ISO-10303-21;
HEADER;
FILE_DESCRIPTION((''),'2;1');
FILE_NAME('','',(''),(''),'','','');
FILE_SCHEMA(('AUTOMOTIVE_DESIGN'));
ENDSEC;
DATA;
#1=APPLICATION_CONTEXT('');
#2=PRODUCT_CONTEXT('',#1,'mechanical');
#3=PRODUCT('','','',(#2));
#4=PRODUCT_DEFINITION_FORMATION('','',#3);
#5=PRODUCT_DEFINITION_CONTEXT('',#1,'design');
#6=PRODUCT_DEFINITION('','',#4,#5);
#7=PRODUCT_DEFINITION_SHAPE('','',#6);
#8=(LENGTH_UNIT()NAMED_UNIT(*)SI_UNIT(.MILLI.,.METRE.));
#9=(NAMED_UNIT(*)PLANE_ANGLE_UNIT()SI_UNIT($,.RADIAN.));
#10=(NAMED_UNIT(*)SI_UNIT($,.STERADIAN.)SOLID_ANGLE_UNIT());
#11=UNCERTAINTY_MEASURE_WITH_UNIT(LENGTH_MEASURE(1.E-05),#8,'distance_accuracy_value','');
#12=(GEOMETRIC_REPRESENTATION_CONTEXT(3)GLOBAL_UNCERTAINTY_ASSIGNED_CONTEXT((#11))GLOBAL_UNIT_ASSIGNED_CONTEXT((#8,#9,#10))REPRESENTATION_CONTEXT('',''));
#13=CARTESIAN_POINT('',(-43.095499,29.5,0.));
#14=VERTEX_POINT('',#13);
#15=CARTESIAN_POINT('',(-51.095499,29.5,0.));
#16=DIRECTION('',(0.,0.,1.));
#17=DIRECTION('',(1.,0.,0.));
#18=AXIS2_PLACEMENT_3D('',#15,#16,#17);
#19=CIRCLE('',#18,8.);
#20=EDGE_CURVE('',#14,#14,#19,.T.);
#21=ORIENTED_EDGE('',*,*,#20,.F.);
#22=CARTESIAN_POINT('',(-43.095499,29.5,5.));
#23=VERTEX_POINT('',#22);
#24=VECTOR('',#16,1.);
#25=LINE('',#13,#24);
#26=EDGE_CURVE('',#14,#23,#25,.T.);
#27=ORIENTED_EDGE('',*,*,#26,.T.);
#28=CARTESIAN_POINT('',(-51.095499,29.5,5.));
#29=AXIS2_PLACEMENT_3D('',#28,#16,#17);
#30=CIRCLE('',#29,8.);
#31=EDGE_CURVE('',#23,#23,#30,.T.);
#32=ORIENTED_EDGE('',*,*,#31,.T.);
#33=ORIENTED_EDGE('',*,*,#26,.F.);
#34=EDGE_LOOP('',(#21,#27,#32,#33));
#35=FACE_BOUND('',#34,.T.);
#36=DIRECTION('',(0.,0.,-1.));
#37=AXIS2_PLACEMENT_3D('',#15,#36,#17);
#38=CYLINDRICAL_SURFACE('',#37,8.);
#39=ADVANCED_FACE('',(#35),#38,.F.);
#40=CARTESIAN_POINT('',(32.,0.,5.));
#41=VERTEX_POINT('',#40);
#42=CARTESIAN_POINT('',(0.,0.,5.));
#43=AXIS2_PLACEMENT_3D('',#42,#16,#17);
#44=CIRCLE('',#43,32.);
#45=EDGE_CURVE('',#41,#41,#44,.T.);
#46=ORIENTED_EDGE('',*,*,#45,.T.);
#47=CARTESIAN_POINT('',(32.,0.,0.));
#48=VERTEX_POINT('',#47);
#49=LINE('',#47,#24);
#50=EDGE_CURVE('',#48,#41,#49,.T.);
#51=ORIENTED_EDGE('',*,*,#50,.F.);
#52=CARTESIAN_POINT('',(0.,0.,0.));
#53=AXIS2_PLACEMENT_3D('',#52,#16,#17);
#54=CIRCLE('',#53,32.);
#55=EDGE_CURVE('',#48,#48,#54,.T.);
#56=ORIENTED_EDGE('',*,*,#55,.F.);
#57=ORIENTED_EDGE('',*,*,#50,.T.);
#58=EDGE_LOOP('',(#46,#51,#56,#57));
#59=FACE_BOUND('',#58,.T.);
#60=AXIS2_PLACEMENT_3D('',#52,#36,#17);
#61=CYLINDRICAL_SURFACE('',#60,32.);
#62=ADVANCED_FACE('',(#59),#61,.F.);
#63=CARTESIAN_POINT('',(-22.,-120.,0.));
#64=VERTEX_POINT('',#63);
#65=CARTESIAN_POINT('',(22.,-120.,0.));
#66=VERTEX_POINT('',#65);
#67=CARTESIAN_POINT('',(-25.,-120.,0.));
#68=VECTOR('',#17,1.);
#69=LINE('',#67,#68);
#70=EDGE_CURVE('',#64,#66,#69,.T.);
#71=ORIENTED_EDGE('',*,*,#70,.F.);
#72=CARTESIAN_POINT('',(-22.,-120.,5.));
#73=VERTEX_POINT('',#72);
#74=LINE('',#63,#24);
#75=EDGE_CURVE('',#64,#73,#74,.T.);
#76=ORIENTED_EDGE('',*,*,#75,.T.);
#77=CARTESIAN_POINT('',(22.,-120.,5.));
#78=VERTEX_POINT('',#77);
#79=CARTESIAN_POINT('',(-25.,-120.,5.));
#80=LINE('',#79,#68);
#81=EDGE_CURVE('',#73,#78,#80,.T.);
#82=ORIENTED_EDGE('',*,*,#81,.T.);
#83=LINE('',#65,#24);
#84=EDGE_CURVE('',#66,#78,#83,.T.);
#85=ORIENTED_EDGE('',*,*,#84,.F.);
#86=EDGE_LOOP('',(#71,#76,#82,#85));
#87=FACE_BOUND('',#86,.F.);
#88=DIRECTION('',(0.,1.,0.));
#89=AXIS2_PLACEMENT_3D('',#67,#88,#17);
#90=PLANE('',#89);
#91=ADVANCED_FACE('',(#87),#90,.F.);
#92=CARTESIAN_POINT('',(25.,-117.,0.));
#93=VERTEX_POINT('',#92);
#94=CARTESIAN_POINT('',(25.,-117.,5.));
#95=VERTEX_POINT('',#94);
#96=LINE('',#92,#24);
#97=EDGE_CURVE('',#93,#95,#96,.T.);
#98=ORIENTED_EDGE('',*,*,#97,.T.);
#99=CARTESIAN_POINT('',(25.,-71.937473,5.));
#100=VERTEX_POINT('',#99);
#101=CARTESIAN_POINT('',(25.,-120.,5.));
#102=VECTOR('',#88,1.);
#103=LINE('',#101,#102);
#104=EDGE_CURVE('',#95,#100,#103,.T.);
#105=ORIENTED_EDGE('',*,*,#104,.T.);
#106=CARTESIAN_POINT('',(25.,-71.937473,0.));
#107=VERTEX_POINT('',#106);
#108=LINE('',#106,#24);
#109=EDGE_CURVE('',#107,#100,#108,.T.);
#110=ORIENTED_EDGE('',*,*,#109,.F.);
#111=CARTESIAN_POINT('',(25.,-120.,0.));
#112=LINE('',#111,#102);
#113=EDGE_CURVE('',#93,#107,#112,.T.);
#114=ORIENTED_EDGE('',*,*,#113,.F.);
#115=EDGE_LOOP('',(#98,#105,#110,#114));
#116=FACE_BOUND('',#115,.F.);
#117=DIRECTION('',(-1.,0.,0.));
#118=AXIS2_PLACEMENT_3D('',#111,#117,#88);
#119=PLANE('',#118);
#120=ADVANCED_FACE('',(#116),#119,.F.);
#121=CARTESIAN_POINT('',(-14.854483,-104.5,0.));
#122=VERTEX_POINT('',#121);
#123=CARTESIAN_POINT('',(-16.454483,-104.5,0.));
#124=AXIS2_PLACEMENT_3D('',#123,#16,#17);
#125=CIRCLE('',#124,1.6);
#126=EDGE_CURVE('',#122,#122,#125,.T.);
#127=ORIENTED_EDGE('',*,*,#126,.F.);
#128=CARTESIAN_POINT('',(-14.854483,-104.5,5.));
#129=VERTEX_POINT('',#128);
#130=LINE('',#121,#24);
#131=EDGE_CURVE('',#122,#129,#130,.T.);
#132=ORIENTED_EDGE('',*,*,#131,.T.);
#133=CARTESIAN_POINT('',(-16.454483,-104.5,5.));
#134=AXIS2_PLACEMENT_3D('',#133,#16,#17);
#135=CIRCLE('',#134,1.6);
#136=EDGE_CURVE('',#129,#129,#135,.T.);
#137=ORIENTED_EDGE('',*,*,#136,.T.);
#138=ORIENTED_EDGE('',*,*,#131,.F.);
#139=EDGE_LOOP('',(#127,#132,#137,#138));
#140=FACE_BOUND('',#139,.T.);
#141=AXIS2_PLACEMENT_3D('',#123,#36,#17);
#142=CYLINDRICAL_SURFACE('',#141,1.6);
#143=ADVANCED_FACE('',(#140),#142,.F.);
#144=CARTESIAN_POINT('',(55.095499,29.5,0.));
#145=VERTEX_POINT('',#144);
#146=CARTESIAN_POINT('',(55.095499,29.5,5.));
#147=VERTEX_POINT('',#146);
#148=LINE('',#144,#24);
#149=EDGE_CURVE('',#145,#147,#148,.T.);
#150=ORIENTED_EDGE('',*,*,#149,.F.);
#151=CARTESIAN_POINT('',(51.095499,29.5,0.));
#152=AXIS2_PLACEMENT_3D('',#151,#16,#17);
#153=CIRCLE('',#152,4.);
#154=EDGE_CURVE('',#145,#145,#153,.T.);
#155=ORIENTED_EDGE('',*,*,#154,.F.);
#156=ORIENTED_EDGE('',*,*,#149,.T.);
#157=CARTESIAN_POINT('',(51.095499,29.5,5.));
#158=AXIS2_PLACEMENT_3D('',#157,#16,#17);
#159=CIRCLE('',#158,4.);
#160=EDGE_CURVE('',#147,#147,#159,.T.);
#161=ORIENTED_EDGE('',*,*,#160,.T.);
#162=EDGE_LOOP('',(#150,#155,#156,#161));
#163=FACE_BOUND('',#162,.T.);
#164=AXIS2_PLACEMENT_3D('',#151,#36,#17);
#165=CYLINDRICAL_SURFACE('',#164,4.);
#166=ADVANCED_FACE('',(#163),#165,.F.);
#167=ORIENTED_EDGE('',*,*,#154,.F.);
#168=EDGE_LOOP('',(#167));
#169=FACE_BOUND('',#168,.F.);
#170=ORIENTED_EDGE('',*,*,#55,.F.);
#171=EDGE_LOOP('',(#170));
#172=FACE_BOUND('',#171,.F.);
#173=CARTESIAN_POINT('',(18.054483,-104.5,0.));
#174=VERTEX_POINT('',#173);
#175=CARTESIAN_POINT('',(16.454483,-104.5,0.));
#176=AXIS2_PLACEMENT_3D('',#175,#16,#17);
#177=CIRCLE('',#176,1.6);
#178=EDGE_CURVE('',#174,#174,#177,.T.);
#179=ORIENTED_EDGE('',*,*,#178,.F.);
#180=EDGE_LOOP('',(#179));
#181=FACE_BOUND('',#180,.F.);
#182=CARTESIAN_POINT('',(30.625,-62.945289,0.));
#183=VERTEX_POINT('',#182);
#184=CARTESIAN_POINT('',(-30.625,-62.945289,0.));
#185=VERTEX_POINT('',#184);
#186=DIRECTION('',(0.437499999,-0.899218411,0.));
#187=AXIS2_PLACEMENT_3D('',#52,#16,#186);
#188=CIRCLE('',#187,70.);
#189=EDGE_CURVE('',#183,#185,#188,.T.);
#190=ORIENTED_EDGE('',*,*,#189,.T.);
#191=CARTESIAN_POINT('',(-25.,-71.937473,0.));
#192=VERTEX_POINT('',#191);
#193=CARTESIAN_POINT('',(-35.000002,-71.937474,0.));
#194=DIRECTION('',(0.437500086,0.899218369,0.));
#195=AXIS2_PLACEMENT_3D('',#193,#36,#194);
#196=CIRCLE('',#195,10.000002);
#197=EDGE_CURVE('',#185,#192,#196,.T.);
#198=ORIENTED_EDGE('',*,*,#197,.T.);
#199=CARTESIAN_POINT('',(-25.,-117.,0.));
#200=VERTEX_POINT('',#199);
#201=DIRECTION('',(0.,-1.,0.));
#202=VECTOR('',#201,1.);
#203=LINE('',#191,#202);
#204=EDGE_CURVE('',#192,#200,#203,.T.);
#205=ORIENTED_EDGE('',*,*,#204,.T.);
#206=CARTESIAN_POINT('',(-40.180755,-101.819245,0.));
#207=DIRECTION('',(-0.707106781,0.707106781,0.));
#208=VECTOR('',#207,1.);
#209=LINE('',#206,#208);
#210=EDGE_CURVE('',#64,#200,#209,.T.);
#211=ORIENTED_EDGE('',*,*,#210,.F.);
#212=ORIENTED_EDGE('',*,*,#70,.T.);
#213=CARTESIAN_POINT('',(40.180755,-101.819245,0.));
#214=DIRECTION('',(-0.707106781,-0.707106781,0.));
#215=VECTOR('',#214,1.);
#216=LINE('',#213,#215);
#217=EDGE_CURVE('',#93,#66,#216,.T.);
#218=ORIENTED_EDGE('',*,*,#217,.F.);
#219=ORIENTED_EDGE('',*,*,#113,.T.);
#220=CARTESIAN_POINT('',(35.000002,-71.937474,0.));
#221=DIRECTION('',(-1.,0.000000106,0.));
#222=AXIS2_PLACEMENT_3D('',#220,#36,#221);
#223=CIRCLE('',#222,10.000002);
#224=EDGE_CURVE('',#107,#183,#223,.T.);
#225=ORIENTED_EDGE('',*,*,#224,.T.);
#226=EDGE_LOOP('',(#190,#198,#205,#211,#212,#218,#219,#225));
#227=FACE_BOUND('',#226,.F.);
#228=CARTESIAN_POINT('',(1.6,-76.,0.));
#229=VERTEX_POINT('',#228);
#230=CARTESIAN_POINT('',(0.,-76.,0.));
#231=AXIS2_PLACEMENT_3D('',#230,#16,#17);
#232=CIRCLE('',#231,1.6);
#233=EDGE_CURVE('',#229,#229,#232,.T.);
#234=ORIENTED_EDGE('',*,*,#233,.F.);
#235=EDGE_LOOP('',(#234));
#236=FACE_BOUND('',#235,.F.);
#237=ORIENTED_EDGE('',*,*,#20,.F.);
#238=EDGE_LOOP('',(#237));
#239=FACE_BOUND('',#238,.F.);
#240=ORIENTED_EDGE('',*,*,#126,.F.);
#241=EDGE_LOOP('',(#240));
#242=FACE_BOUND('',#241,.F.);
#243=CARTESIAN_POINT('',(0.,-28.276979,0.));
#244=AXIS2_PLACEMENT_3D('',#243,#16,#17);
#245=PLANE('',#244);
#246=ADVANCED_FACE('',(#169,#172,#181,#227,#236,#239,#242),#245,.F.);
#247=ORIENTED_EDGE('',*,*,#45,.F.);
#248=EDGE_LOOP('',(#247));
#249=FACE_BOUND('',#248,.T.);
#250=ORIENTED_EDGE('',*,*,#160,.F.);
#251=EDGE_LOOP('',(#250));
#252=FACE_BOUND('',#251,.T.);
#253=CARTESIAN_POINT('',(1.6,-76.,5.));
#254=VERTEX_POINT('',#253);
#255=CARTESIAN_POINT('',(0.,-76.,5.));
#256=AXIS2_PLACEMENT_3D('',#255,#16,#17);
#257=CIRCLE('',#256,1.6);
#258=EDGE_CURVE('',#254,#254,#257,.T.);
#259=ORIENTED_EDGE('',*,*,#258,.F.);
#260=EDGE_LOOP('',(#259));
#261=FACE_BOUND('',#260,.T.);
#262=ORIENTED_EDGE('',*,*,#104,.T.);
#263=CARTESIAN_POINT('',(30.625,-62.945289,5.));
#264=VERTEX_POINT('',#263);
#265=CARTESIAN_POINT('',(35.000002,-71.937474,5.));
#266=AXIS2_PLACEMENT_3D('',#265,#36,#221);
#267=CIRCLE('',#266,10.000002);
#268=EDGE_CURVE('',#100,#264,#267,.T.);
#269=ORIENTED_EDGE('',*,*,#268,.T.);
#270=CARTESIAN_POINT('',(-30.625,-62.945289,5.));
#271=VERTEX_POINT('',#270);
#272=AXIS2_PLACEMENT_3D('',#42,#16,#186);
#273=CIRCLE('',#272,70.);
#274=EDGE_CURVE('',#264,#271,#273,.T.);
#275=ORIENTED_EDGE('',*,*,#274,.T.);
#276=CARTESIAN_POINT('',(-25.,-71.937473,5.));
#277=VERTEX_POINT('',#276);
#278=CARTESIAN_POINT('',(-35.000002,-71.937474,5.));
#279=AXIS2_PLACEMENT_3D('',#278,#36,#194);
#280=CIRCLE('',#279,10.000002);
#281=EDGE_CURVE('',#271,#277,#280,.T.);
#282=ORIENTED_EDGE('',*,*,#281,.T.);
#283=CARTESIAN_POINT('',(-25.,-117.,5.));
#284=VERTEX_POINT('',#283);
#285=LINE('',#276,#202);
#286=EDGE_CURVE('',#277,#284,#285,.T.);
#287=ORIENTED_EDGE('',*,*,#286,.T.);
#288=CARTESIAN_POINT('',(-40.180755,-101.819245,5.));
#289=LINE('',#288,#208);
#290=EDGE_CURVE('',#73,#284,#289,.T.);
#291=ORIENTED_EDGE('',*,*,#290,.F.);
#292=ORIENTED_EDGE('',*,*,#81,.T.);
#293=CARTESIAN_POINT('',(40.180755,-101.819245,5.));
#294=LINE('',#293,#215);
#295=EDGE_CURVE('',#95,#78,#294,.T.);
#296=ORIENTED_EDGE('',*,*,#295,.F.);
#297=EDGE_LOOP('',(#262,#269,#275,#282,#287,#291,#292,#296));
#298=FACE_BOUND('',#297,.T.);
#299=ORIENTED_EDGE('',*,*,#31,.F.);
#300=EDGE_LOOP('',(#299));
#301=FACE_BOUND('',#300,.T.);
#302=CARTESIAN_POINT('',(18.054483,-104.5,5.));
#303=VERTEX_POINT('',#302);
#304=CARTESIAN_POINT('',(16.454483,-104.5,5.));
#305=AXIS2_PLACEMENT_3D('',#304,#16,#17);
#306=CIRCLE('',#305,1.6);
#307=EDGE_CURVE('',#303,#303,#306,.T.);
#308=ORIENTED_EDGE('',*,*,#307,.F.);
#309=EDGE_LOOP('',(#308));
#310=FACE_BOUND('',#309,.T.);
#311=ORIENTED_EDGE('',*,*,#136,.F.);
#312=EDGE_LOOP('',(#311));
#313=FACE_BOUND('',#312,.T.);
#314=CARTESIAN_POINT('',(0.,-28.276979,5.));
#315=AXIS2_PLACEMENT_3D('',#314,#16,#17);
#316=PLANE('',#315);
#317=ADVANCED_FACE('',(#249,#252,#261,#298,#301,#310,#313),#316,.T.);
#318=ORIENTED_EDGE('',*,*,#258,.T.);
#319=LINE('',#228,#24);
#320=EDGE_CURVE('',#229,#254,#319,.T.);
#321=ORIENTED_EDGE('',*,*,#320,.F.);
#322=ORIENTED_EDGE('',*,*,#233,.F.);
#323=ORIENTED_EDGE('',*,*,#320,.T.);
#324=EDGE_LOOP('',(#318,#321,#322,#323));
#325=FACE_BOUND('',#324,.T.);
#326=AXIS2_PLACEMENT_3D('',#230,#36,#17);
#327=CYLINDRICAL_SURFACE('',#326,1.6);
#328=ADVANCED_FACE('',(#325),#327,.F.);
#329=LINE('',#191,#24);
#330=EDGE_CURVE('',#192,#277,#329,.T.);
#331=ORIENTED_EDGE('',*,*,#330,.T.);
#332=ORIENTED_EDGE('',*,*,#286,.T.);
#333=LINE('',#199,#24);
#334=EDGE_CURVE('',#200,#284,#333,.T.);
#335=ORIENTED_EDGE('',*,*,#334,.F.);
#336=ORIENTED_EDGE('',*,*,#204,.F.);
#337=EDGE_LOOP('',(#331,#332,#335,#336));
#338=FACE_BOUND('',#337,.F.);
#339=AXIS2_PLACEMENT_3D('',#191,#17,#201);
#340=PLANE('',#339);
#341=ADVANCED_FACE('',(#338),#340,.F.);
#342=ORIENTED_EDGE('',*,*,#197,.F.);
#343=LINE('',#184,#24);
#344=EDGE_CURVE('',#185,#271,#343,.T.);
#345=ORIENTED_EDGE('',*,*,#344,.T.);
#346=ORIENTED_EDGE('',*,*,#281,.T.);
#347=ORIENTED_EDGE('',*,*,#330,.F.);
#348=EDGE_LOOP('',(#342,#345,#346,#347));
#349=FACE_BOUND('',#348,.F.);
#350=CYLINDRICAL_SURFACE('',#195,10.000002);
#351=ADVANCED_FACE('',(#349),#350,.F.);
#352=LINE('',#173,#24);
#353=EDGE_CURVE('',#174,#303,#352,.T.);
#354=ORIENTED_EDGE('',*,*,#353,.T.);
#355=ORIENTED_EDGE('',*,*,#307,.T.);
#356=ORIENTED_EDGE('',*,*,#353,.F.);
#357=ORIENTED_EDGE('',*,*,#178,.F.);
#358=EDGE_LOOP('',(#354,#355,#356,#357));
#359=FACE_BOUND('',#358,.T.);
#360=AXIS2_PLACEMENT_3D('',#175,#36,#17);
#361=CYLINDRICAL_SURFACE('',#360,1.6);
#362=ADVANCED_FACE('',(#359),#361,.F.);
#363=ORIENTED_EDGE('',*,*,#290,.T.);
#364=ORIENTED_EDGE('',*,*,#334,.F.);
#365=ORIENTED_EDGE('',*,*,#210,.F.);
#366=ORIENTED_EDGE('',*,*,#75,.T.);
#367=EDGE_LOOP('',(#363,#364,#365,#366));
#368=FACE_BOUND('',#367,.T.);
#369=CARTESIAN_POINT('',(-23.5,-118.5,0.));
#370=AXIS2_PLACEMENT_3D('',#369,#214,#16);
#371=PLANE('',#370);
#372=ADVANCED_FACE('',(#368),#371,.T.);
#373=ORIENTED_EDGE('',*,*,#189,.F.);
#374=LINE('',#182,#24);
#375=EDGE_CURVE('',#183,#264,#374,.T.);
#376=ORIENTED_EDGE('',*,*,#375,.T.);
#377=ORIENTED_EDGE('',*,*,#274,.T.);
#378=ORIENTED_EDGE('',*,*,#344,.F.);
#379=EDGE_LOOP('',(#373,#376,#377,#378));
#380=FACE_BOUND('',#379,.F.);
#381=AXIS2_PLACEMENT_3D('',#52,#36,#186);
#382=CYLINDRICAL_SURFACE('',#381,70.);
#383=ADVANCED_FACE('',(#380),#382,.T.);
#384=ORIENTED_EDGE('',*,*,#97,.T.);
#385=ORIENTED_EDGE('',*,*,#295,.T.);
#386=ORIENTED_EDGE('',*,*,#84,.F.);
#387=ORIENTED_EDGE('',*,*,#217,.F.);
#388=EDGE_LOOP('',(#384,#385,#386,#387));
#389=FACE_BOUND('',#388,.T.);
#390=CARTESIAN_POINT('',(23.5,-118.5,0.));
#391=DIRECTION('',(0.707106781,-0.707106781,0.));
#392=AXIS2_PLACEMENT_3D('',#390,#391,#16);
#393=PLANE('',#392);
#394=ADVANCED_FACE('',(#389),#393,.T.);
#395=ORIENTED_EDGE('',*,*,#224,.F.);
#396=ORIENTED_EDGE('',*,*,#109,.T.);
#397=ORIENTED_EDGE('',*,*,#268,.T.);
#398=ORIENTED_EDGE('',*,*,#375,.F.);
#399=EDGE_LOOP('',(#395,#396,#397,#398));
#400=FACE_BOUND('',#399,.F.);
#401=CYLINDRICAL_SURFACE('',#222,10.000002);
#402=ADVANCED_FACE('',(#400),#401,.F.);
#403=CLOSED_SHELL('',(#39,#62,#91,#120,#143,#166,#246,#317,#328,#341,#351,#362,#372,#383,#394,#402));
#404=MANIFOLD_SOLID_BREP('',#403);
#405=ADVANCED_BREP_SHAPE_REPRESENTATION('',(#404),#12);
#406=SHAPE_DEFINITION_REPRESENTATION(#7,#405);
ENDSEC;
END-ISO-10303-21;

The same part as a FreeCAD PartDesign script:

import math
import FreeCAD as App
import Part
import Sketcher
from FreeCAD import Vector
Q = App.Units.Quantity


def edges_at(feature, points):
    """Names of the edges that pass closest to the given points."""
    edges = feature.Shape.Edges
    near = lambda p: min(range(len(edges)), key=lambda i: edges[i].distToShape(Part.Vertex(*p))[0])
    return sorted({f"Edge{near(p) + 1}" for p in points})

doc = App.newDocument("Part")
body = doc.addObject("PartDesign::Body", "Body")

# Sketch on XY plane
sketch1 = doc.addObject("Sketcher::SketchObject", "Sketch")
body.addObject(sketch1)
sketch1.AttachmentSupport = (doc.XY_Plane, [""])
sketch1.MapMode = "FlatFace"
sketch1.addGeometry([
    Part.LineSegment(Vector(25, -120, 0), Vector(25, -71.9, 0)),  # 0
    Part.ArcOfCircle(Part.Circle(Vector(35, -71.9, 0), Vector(0, 0, 1), 10), math.radians(116), math.radians(180)),  # 1
    Part.ArcOfCircle(Part.Circle(Vector(0, 0, 0), Vector(0, 0, 1), 70), math.radians(-64), math.radians(244)),  # 2
    Part.ArcOfCircle(Part.Circle(Vector(-35, -71.9, 0), Vector(0, 0, 1), 10), math.radians(0), math.radians(64)),  # 3
    Part.LineSegment(Vector(-25, -71.9, 0), Vector(-25, -120, 0)),  # 4
    Part.LineSegment(Vector(-25, -120, 0), Vector(25, -120, 0)),  # 5
    Part.Circle(Vector(-16.5, -104.5, 0), Vector(0, 0, 1), 1.6),  # 6
    Part.Circle(Vector(16.5, -104.5, 0), Vector(0, 0, 1), 1.6),  # 7
    Part.Circle(Vector(0, -76, 0), Vector(0, 0, 1), 1.6),  # 8
    Part.Circle(Vector(-51.1, 29.5, 0), Vector(0, 0, 1), 8),  # 9
    Part.Circle(Vector(0, 0, 0), Vector(0, 0, 1), 32),  # 10
    Part.Circle(Vector(51.1, 29.5, 0), Vector(0, 0, 1), 4),  # 11
], False)
sketch1.addConstraint([
    Sketcher.Constraint("Tangent", 0, 2, 1, 2),
    Sketcher.Constraint("Tangent", 1, 1, 2, 1),
    Sketcher.Constraint("Tangent", 2, 2, 3, 2),
    Sketcher.Constraint("Tangent", 3, 1, 4, 1),
    Sketcher.Constraint("Coincident", 4, 2, 5, 1),
    Sketcher.Constraint("Coincident", 5, 2, 0, 1),
    Sketcher.Constraint("Vertical", 0),
    Sketcher.Constraint("Vertical", 4),
    Sketcher.Constraint("Horizontal", 5),
    Sketcher.Constraint("Coincident", 2, 3, -1, 1),
    Sketcher.Constraint("Coincident", 10, 3, -1, 1),
    Sketcher.Constraint("Equal", 1, 3),
    Sketcher.Constraint("Equal", 6, 7),
    Sketcher.Constraint("Equal", 7, 8),
    Sketcher.Constraint("Symmetric", 6, 3, 7, 3, -2),
    Sketcher.Constraint("Symmetric", 9, 3, 11, 3, -2),
    Sketcher.Constraint("PointOnObject", 8, 3, -2),
    Sketcher.Constraint("Horizontal", 1, 3, 3, 3),
    Sketcher.Constraint("Diameter", 9, Q("16 mm")),
    Sketcher.Constraint("Diameter", 10, Q("64 mm")),
    Sketcher.Constraint("Diameter", 11, Q("8 mm")),
    Sketcher.Constraint("Radius", 1, Q("10.000002 mm")),
    Sketcher.Constraint("Radius", 2, Q("70 mm")),
    Sketcher.Constraint("Diameter", 6, Q("3.2 mm")),
    Sketcher.Constraint("DistanceX", 5, 1, 5, 2, Q("50 mm")),
    Sketcher.Constraint("DistanceY", 8, 3, -1, 1, Q("76 mm")),
    Sketcher.Constraint("DistanceY", 4, 2, -1, 1, Q("120 mm")),
    Sketcher.Constraint("DistanceY", 6, 3, 9, 3, Q("134 mm")),
    Sketcher.Constraint("DistanceY", 6, 3, -1, 1, Q("104.5 mm")),
    Sketcher.Constraint("DistanceX", 9, 3, -1, 1, Q("51.095499 mm")),
    Sketcher.Constraint("DistanceX", 3, 3, 6, 3, Q("18.545519 mm")),
])
pad1 = doc.addObject("PartDesign::Pad", "Pad")
body.addObject(pad1)
pad1.Profile = sketch1
pad1.Length = 5
doc.recompute()

chamfer = doc.addObject("PartDesign::Chamfer", "Chamfer")
body.addObject(chamfer)
chamfer.Base = (pad1, edges_at(pad1, [(25, -120, 2.5), (-25, -120, 2.5)]))
chamfer.Size = 3

doc.recompute()
